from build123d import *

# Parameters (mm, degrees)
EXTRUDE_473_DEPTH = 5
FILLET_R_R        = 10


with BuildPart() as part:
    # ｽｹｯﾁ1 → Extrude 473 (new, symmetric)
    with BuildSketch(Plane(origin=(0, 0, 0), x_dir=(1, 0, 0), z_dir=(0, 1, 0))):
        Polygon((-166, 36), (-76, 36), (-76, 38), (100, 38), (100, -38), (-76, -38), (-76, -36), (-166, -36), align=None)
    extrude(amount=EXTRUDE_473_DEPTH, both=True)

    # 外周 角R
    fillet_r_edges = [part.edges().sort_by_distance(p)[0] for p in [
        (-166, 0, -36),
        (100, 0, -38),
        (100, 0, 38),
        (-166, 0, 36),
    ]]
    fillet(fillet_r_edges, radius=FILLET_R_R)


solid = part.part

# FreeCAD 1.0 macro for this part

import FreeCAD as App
import Part
import Sketcher
Q = App.Units.Quantity


def edges_at(feature, points):
    """Names of the edges that pass closest to the given points."""
    edges = feature.Shape.Edges
    near = lambda p: min(range(len(edges)), key=lambda i: edges[i].distToShape(Part.Vertex(*p))[0])
    return sorted({f"Edge{near(p) + 1}" for p in points})

doc = App.newDocument("Part")
body = doc.addObject("PartDesign::Body", "Body")

sketch1 = doc.addObject("Sketcher::SketchObject", "Sketch")
body.addObject(sketch1)
sketch1.AttachmentSupport = (doc.XZ_Plane, [""])
sketch1.MapMode = "FlatFace"
sketch1.addGeometry([
    Part.LineSegment(App.Vector(-76, -36, 0), App.Vector(-166, -36, 0)),
    Part.LineSegment(App.Vector(-166, -36, 0), App.Vector(-166, 36, 0)),
    Part.LineSegment(App.Vector(-166, 36, 0), App.Vector(-76, 36, 0)),
    Part.LineSegment(App.Vector(-76, 36, 0), App.Vector(-76, 38, 0)),
    Part.LineSegment(App.Vector(-76, 38, 0), App.Vector(100, 38, 0)),
    Part.LineSegment(App.Vector(100, 38, 0), App.Vector(100, -38, 0)),
    Part.LineSegment(App.Vector(100, -38, 0), App.Vector(-76, -38, 0)),
    Part.LineSegment(App.Vector(-76, -38, 0), App.Vector(-76, -36, 0)),
], False)
sketch1.addConstraint([
    Sketcher.Constraint("Coincident", 0, 2, 1, 1),
    Sketcher.Constraint("Coincident", 1, 2, 2, 1),
    Sketcher.Constraint("Coincident", 2, 2, 3, 1),
    Sketcher.Constraint("Coincident", 3, 2, 4, 1),
    Sketcher.Constraint("Coincident", 4, 2, 5, 1),
    Sketcher.Constraint("Coincident", 5, 2, 6, 1),
    Sketcher.Constraint("Coincident", 6, 2, 7, 1),
    Sketcher.Constraint("Coincident", 7, 2, 0, 1),
    Sketcher.Constraint("Horizontal", 0),
    Sketcher.Constraint("Vertical", 1),
    Sketcher.Constraint("Horizontal", 2),
    Sketcher.Constraint("Vertical", 3),
    Sketcher.Constraint("Horizontal", 4),
    Sketcher.Constraint("Vertical", 5),
    Sketcher.Constraint("Horizontal", 6),
    Sketcher.Constraint("Vertical", 7),
    Sketcher.Constraint("Symmetric", 3, 2, 6, 2, -1),
    Sketcher.Constraint("Equal", 3, 7),
    Sketcher.Constraint("DistanceX", 0, 2, 0, 1, Q("90 mm")),
    Sketcher.Constraint("DistanceX", 4, 1, 4, 2, Q("176 mm")),
    Sketcher.Constraint("DistanceY", 1, 1, 1, 2, Q("72 mm")),
    Sketcher.Constraint("DistanceY", 3, 1, 3, 2, Q("2 mm")),
    Sketcher.Constraint("DistanceX", 0, 2, -1, 1, Q("166 mm")),
])
pad1 = doc.addObject("PartDesign::Pad", "Pad")
body.addObject(pad1)
pad1.Profile = sketch1
pad1.Length = 10
pad1.Midplane = True
doc.recompute()

fillet = doc.addObject("PartDesign::Fillet", "Fillet")
body.addObject(fillet)
fillet.Base = (pad1, edges_at(pad1, [
    (-166, 0, -36),
    (100, 0, -38),
    (100, 0, 38),
    (-166, 0, 36),
]))
fillet.Radius = 10

doc.recompute()
